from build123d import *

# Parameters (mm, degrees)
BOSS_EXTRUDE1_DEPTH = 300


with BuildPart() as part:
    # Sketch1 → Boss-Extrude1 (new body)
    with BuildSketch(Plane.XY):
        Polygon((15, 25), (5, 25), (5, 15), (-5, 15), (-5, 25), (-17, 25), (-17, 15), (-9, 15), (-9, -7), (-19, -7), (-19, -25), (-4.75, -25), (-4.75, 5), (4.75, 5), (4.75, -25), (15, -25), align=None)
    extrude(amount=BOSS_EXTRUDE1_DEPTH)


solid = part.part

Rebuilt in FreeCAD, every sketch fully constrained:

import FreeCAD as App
import Part
import Sketcher

V = App.Vector
Q = App.Units.Quantity

doc = App.newDocument("Part")
params = doc.addObject("Spreadsheet::Sheet", "Params")
for row, (alias, value) in enumerate([
    ("sketch1_width", "10 mm"),
    ("sketch1_width2", "12 mm"),
    ("sketch1_width3", "8 mm"),
    ("sketch1_height", "22 mm"),
    ("sketch1_height2", "18 mm"),
    ("pad1_length", "300 mm"),
], start=1):
    params.set(f"A{row}", alias)
    params.set(f"B{row}", "=" + value)
    params.setAlias(f"B{row}", alias)

body = doc.addObject("PartDesign::Body", "Body")

# Sketch on XY plane
sketch1 = body.newObject("Sketcher::SketchObject", "Sketch")
sketch1.AttachmentSupport = (doc.getObject("XY_Plane"), [""])
sketch1.MapMode = "FlatFace"
sketch1.addGeometry([
    Part.LineSegment(V(15, 25, 0), V(5, 25, 0)),  # 0
    Part.LineSegment(V(5, 25, 0), V(5, 15, 0)),  # 1
    Part.LineSegment(V(5, 15, 0), V(-5, 15, 0)),  # 2
    Part.LineSegment(V(-5, 15, 0), V(-5, 25, 0)),  # 3
    Part.LineSegment(V(-5, 25, 0), V(-17, 25, 0)),  # 4
    Part.LineSegment(V(-17, 25, 0), V(-17, 15, 0)),  # 5
    Part.LineSegment(V(-17, 15, 0), V(-9, 15, 0)),  # 6
    Part.LineSegment(V(-9, 15, 0), V(-9, -7, 0)),  # 7
    Part.LineSegment(V(-9, -7, 0), V(-19, -7, 0)),  # 8
    Part.LineSegment(V(-19, -7, 0), V(-19, -25, 0)),  # 9
    Part.LineSegment(V(-19, -25, 0), V(-4.75, -25, 0)),  # 10
    Part.LineSegment(V(-4.75, -25, 0), V(-4.75, 5, 0)),  # 11
    Part.LineSegment(V(-4.75, 5, 0), V(4.75, 5, 0)),  # 12
    Part.LineSegment(V(4.75, 5, 0), V(4.75, -25, 0)),  # 13
    Part.LineSegment(V(4.75, -25, 0), V(15, -25, 0)),  # 14
    Part.LineSegment(V(15, -25, 0), V(15, 25, 0)),  # 15
], False)
sketch1.addConstraint([
    Sketcher.Constraint("Coincident", 0, 2, 1, 1),
    Sketcher.Constraint("Coincident", 1, 2, 2, 1),
    Sketcher.Constraint("Coincident", 2, 2, 3, 1),
    Sketcher.Constraint("Coincident", 3, 2, 4, 1),
    Sketcher.Constraint("Coincident", 4, 2, 5, 1),
    Sketcher.Constraint("Coincident", 5, 2, 6, 1),
    Sketcher.Constraint("Coincident", 6, 2, 7, 1),
    Sketcher.Constraint("Coincident", 7, 2, 8, 1),
    Sketcher.Constraint("Coincident", 8, 2, 9, 1),
    Sketcher.Constraint("Coincident", 9, 2, 10, 1),
    Sketcher.Constraint("Coincident", 10, 2, 11, 1),
    Sketcher.Constraint("Coincident", 11, 2, 12, 1),
    Sketcher.Constraint("Coincident", 12, 2, 13, 1),
    Sketcher.Constraint("Coincident", 13, 2, 14, 1),
    Sketcher.Constraint("Coincident", 14, 2, 15, 1),
    Sketcher.Constraint("Coincident", 15, 2, 0, 1),
    Sketcher.Constraint("Horizontal", 0),
    Sketcher.Constraint("Vertical", 1),
    Sketcher.Constraint("Horizontal", 2),
    Sketcher.Constraint("Vertical", 3),
    Sketcher.Constraint("Horizontal", 4),
    Sketcher.Constraint("Vertical", 5),
    Sketcher.Constraint("Horizontal", 6),
    Sketcher.Constraint("Vertical", 7),
    Sketcher.Constraint("Horizontal", 8),
    Sketcher.Constraint("Vertical", 9),
    Sketcher.Constraint("Horizontal", 10),
    Sketcher.Constraint("Vertical", 11),
    Sketcher.Constraint("Horizontal", 12),
    Sketcher.Constraint("Vertical", 13),
    Sketcher.Constraint("Horizontal", 14),
    Sketcher.Constraint("Vertical", 15),
    Sketcher.Constraint("Symmetric", 0, 2, 3, 2, -2),
    Sketcher.Constraint("Symmetric", 10, 2, 13, 2, -2),
    Sketcher.Constraint("Horizontal", 2, 2, 5, 2),
    Sketcher.Constraint("Equal", 0, 2),
    Sketcher.Constraint("Equal", 2, 8),
    Sketcher.Constraint("Equal", 8, 1),
    Sketcher.Constraint("DistanceX", 0, 2, 0, 1, Q("10 mm")),
    Sketcher.Constraint("DistanceX", 4, 2, 4, 1, Q("12 mm")),
    Sketcher.Constraint("DistanceX", 6, 1, 6, 2, Q("8 mm")),
    Sketcher.Constraint("DistanceY", 7, 2, 7, 1, Q("22 mm")),
    Sketcher.Constraint("DistanceY", 9, 2, 9, 1, Q("18 mm")),
    Sketcher.Constraint("DistanceY", 11, 1, 11, 2, Q("30 mm")),
    Sketcher.Constraint("DistanceX", 12, 1, 12, 2, Q("9.5 mm")),
    Sketcher.Constraint("DistanceY", -1, 1, 0, 2, Q("25 mm")),
])
sketch1.setExpression("Constraints[38]", "Params.sketch1_width")
sketch1.setExpression("Constraints[39]", "Params.sketch1_width2")
sketch1.setExpression("Constraints[40]", "Params.sketch1_width3")
sketch1.setExpression("Constraints[41]", "Params.sketch1_height")
sketch1.setExpression("Constraints[42]", "Params.sketch1_height2")
pad1 = body.newObject("PartDesign::Pad", "Pad")
pad1.Profile = sketch1
pad1.setExpression("Length", "Params.pad1_length")

doc.recompute()
